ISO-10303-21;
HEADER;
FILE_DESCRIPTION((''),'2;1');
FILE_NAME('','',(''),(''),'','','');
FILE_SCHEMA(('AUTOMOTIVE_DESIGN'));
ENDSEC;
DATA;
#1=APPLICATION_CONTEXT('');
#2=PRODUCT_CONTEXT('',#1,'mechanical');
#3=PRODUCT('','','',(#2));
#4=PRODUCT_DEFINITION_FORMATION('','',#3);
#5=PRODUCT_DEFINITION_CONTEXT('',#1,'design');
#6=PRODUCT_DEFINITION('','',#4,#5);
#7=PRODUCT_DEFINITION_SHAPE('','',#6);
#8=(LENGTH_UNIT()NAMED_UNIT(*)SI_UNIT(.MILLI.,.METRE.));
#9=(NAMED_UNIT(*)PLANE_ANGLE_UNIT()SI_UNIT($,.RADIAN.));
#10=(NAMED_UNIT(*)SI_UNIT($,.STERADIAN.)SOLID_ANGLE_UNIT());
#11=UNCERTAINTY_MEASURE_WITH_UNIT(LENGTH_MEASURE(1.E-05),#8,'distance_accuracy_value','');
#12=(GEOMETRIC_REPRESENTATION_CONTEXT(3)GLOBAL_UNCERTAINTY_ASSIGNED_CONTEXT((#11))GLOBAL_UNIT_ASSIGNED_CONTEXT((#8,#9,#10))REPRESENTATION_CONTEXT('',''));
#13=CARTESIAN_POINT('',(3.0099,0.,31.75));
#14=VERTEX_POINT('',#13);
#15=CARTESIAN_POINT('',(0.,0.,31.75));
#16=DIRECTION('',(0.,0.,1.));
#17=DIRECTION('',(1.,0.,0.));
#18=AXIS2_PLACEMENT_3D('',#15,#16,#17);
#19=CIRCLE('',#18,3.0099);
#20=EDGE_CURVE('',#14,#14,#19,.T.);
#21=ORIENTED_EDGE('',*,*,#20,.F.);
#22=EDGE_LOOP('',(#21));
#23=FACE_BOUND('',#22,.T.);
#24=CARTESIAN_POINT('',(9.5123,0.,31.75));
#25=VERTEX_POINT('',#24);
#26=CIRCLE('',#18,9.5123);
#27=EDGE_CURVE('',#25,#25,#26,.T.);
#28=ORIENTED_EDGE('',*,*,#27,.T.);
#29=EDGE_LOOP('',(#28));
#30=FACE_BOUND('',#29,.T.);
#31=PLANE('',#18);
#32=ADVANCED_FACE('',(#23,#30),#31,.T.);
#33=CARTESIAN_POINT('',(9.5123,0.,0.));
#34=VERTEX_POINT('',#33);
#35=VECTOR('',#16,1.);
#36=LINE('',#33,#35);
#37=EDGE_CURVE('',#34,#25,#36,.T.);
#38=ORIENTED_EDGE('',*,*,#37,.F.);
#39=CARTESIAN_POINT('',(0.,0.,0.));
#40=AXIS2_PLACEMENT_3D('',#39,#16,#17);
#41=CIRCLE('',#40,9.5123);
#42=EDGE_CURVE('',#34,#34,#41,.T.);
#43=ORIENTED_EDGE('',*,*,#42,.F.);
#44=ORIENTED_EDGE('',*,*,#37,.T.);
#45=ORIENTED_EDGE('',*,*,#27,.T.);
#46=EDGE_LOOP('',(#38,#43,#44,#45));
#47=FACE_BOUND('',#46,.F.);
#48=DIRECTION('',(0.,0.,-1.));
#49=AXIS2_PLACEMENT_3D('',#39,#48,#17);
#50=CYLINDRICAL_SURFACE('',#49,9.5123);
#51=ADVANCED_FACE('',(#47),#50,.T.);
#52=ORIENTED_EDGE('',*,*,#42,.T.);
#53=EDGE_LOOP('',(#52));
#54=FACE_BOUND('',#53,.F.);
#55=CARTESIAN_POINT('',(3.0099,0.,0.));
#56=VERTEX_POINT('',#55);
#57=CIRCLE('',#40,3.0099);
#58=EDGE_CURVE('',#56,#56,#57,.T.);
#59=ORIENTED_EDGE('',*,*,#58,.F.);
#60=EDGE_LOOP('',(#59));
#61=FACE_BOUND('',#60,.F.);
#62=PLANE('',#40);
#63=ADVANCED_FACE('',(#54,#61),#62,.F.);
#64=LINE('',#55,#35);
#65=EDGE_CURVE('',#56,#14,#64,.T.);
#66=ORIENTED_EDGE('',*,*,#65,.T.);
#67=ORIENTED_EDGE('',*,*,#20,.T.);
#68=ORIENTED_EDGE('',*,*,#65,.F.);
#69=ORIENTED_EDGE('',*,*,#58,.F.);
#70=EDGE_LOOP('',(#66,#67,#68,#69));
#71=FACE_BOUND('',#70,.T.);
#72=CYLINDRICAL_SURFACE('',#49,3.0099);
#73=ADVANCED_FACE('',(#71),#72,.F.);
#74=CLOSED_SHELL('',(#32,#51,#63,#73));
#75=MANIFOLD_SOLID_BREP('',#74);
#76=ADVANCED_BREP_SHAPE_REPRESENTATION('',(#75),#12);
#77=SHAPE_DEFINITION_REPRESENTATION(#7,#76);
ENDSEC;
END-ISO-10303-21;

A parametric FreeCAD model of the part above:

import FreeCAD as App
import Part
import Sketcher
Q = App.Units.Quantity

doc = App.newDocument("Part")
body = doc.addObject("PartDesign::Body", "Body")

sketch1 = doc.addObject("Sketcher::SketchObject", "Sketch")
body.addObject(sketch1)
sketch1.AttachmentSupport = (doc.XY_Plane, [""])
sketch1.MapMode = "FlatFace"
sketch1.addGeometry(Part.Circle(App.Vector(0, 0, 0), App.Vector(0, 0, 1), 9.5), False)
sketch1.addGeometry(Part.Circle(App.Vector(0, 0, 0), App.Vector(0, 0, 1), 3), False)
sketch1.addConstraint(Sketcher.Constraint("Coincident", 0, 3, -1, 1))
sketch1.addConstraint(Sketcher.Constraint("Coincident", 1, 3, -1, 1))
sketch1.addConstraint(Sketcher.Constraint("Diameter", 0, Q("0.749 in")))
sketch1.addConstraint(Sketcher.Constraint("Diameter", 1, Q("0.237 in")))
pad1 = doc.addObject("PartDesign::Pad", "Pad")
body.addObject(pad1)
pad1.Profile = sketch1
pad1.Length = Q("1.25 in")

doc.recompute()
